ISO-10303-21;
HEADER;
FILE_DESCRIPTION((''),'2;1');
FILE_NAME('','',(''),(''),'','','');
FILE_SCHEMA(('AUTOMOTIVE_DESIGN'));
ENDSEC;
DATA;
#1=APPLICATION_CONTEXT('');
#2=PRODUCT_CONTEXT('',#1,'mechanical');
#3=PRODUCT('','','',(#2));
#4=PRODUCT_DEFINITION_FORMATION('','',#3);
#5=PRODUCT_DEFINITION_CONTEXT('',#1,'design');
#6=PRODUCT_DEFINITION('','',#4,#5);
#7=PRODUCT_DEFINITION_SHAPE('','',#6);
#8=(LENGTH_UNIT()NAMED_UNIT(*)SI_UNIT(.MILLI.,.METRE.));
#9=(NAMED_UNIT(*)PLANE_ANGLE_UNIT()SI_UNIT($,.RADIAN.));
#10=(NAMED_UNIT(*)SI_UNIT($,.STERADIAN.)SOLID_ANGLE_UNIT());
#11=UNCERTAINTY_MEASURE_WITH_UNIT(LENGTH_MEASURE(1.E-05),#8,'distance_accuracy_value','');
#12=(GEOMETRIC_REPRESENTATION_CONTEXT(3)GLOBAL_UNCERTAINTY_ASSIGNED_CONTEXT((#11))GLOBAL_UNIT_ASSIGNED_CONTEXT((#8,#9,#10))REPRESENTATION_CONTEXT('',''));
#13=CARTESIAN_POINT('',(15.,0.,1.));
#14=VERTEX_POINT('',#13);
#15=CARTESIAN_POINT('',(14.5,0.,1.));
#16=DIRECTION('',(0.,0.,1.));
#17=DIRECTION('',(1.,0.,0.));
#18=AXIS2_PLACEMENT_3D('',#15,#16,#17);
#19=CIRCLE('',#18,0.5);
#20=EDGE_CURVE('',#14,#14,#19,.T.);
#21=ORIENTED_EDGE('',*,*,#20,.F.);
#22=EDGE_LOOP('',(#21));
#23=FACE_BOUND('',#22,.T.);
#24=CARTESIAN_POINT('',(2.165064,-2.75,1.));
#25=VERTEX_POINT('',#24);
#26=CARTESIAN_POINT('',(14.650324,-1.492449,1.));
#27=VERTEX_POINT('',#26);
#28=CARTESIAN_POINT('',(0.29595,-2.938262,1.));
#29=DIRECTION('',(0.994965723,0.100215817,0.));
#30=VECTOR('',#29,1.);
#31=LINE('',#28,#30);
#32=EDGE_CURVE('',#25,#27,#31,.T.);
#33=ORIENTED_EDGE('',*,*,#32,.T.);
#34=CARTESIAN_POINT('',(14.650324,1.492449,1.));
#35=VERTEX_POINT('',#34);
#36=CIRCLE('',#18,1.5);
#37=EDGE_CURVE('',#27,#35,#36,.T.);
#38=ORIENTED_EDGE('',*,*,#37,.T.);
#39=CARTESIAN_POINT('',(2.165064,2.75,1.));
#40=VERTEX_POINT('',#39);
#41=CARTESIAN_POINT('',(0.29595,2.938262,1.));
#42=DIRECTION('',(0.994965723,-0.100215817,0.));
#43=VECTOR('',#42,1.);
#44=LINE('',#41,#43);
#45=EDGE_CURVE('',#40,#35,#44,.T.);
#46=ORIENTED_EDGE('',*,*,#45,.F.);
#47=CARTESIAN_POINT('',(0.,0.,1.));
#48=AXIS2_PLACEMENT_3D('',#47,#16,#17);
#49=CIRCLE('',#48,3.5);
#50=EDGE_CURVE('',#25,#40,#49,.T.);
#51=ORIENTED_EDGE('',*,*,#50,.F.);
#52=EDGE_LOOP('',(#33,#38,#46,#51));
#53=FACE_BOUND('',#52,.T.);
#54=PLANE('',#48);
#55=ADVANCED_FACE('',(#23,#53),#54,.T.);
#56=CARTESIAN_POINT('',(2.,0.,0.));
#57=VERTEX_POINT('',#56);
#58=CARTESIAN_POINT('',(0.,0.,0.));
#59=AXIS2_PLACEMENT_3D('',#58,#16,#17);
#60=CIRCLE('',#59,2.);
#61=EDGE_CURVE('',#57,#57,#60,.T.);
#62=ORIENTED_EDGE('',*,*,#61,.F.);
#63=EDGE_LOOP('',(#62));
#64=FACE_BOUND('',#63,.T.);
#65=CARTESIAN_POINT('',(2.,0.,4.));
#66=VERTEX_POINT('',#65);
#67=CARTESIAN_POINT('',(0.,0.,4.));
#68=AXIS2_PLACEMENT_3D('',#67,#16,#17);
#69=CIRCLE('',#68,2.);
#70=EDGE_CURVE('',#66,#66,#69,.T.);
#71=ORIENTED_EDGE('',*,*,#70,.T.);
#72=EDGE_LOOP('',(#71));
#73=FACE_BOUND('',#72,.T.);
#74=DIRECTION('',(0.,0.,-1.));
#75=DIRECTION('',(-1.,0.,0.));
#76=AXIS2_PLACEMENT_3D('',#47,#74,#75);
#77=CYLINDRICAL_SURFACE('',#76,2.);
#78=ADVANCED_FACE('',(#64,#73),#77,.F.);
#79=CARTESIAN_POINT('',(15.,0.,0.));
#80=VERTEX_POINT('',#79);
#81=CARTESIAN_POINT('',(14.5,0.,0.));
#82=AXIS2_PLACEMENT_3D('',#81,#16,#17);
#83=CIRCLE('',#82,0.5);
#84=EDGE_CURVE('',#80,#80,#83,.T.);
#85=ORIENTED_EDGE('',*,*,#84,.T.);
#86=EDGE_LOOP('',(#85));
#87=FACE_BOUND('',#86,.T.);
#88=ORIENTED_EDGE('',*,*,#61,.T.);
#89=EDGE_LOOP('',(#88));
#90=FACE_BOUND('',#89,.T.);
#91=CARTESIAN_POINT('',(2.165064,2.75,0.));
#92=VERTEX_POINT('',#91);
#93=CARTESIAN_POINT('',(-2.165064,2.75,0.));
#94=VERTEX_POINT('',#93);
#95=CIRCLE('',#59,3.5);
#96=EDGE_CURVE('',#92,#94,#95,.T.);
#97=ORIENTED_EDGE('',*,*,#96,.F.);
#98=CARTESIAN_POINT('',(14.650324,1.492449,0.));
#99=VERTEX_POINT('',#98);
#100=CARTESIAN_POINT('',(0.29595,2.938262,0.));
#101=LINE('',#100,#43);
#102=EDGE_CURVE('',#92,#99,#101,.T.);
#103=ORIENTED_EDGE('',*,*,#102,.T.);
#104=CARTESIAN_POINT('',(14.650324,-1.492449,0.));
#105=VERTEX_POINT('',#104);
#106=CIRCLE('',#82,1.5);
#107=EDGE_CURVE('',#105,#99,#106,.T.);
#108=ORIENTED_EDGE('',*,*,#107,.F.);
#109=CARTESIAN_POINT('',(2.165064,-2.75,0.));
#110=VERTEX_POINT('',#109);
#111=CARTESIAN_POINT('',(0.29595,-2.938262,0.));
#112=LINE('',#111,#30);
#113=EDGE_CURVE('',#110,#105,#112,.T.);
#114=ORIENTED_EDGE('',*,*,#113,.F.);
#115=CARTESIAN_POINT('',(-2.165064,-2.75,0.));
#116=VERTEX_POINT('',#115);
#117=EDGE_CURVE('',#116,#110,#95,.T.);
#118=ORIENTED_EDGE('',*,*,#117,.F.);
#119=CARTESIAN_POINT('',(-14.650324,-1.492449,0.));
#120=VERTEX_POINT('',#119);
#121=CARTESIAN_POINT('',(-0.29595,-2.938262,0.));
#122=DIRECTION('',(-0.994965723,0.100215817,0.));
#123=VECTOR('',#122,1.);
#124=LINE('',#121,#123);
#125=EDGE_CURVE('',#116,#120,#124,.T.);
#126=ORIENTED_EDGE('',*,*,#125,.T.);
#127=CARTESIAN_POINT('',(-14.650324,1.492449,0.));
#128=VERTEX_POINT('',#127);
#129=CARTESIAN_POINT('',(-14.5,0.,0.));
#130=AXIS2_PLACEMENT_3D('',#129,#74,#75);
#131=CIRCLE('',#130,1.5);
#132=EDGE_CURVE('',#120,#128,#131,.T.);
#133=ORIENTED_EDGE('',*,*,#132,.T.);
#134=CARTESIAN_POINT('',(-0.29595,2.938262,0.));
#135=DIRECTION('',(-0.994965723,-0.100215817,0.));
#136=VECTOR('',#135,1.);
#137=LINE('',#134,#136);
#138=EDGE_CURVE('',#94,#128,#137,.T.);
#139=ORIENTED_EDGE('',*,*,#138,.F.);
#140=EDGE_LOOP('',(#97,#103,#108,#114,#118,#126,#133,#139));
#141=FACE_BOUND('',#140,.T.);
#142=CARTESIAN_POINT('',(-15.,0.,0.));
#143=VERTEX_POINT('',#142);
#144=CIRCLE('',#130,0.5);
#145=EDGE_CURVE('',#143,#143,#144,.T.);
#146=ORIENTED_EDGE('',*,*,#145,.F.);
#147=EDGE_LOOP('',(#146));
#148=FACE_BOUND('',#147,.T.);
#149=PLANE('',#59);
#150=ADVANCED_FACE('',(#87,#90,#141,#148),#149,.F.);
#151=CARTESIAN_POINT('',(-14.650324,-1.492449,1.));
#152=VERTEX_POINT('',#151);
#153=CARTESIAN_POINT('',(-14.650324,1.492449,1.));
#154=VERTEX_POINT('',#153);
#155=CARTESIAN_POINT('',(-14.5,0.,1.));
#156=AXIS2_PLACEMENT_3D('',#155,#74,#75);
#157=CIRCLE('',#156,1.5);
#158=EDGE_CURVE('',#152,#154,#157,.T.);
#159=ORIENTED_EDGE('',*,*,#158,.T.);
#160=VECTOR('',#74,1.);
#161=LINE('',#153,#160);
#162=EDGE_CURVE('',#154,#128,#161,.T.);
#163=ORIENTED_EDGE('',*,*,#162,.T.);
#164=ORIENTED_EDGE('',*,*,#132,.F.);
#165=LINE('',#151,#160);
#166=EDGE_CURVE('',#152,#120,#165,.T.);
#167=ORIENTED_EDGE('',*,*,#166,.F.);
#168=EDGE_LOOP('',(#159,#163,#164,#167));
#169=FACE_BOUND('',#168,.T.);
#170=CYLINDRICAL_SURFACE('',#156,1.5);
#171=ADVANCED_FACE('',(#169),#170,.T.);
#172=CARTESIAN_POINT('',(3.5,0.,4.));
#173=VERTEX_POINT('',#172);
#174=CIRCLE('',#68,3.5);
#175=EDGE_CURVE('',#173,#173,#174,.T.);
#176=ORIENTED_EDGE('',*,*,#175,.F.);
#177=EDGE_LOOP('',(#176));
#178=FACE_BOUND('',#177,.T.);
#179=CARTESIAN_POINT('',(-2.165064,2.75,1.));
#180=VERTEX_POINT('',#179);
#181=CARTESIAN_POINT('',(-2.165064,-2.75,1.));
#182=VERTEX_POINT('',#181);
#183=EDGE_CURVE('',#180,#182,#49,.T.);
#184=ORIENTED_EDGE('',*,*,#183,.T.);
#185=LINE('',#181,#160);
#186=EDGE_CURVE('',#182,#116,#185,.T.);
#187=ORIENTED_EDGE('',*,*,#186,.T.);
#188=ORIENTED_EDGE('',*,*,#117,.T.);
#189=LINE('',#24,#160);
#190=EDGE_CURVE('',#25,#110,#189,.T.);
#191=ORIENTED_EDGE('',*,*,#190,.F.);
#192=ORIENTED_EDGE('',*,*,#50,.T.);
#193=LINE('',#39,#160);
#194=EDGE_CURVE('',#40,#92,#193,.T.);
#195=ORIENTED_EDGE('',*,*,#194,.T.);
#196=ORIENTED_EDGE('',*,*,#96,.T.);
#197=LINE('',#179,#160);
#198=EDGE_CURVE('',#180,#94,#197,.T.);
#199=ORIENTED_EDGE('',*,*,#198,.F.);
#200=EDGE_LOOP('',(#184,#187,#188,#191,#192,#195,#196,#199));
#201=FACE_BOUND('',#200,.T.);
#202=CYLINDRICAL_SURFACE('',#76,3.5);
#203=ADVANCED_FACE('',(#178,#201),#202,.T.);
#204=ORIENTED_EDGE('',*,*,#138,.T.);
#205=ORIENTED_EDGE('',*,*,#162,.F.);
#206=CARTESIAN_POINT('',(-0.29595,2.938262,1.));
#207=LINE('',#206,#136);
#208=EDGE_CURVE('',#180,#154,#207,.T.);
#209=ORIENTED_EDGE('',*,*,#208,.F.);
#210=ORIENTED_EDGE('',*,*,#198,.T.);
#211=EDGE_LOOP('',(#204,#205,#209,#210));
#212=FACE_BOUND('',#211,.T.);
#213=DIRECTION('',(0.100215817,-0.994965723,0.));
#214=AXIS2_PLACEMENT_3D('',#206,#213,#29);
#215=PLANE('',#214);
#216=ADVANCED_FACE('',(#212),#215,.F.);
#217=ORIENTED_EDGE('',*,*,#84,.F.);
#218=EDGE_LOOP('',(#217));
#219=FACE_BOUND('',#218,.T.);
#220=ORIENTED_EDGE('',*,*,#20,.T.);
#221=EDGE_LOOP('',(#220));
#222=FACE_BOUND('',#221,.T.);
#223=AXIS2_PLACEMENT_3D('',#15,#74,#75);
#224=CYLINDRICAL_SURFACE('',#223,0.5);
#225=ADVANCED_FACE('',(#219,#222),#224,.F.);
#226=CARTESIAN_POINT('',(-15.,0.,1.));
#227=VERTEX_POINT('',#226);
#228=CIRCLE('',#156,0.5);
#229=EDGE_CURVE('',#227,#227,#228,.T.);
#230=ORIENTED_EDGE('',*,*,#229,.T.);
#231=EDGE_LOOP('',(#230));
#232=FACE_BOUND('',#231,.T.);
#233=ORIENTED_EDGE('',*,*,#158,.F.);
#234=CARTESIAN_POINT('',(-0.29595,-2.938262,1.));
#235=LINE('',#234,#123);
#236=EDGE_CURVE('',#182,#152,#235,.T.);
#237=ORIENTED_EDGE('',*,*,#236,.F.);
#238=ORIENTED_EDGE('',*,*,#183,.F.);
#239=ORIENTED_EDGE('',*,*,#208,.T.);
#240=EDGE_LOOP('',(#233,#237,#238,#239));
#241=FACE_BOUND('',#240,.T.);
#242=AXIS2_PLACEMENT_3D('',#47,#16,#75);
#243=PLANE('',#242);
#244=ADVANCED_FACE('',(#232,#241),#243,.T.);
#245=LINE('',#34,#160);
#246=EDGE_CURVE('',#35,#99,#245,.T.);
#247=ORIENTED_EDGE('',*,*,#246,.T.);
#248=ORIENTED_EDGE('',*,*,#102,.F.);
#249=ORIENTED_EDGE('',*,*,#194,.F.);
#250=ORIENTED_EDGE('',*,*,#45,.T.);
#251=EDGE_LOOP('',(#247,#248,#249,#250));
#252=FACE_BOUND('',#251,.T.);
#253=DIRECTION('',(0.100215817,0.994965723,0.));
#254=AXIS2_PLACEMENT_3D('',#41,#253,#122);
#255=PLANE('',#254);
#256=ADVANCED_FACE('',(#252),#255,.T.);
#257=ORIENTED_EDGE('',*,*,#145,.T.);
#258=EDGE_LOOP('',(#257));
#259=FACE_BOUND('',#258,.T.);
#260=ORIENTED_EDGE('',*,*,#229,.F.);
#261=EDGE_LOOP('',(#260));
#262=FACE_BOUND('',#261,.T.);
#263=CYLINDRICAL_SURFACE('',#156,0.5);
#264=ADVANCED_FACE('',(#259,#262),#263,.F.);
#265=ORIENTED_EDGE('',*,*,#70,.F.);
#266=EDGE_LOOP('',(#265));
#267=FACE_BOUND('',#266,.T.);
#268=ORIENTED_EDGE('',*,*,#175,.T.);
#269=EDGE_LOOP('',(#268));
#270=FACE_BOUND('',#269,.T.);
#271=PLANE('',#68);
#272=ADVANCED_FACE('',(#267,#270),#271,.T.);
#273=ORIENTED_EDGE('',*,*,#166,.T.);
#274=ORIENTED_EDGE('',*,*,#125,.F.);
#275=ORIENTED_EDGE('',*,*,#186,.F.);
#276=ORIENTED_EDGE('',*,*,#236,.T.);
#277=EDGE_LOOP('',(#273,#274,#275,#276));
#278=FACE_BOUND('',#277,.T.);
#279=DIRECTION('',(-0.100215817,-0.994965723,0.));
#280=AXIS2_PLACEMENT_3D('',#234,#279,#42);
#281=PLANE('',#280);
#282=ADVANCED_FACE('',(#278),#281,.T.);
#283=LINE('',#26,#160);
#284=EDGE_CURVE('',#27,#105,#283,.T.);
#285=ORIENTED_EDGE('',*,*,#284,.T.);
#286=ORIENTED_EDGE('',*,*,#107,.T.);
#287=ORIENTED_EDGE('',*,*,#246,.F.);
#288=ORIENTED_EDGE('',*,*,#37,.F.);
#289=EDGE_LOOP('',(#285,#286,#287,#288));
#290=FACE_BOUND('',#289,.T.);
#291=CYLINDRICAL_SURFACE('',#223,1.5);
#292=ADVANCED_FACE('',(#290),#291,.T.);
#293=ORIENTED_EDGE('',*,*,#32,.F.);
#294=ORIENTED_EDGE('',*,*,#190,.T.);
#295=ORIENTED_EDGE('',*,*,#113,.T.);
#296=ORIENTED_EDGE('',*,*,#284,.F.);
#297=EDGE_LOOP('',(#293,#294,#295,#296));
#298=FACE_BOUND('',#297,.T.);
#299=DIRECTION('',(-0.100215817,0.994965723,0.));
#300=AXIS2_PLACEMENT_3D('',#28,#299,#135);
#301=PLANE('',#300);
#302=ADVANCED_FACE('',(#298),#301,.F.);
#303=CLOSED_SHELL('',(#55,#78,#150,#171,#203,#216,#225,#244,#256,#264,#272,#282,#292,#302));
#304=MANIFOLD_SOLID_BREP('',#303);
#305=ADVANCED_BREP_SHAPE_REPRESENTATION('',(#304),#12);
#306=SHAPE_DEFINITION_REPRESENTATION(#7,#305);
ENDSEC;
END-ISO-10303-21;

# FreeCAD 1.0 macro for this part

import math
import FreeCAD as App
import Part
import Sketcher

doc = App.newDocument("Part")
body = doc.addObject("PartDesign::Body", "Body")

# Sketch on XY plane
sketch1 = doc.addObject("Sketcher::SketchObject", "Sketch")
body.addObject(sketch1)
sketch1.AttachmentSupport = (doc.XY_Plane, [""])
sketch1.MapMode = "FlatFace"
sketch1.addGeometry([
    Part.LineSegment(App.Vector(14.7, 1.5, 0), App.Vector(2.2, 2.8, 0)),  # 0
    Part.ArcOfCircle(Part.Circle(App.Vector(0, 0, 0), App.Vector(0, 0, 1), 3.5), math.radians(52), math.radians(308)),  # 1
    Part.LineSegment(App.Vector(2.2, -2.8, 0), App.Vector(14.7, -1.5, 0)),  # 2
    Part.ArcOfCircle(Part.Circle(App.Vector(14.5, 0, 0), App.Vector(0, 0, 1), 1.5), math.radians(-84), math.radians(84)),  # 3
    Part.Circle(App.Vector(0, 0, 0), App.Vector(0, 0, 1), 2),  # 4
    Part.Circle(App.Vector(14.5, 0, 0), App.Vector(0, 0, 1), 0.5),  # 5
], False)
sketch1.addConstraint([
    Sketcher.Constraint("Coincident", 0, 2, 1, 1),
    Sketcher.Constraint("Coincident", 1, 2, 2, 1),
    Sketcher.Constraint("Tangent", 2, 2, 3, 1),
    Sketcher.Constraint("Tangent", 3, 2, 0, 1),
    Sketcher.Constraint("Coincident", 1, 3, -1, 1),
    Sketcher.Constraint("Coincident", 4, 3, -1, 1),
    Sketcher.Constraint("Coincident", 5, 3, 3, 3),
    Sketcher.Constraint("Symmetric", 2, 2, 3, 2, -1),
    Sketcher.Constraint("Diameter", 4, 4.0),
    Sketcher.Constraint("Diameter", 5, 1.0),
    Sketcher.Constraint("Radius", 1, 3.5),
    Sketcher.Constraint("Radius", 3, 1.5),
    Sketcher.Constraint("DistanceX", -1, 1, 3, 3, 14.5),
    Sketcher.Constraint("DistanceY", 1, 2, 0, 2, 5.5),
])
pad1 = doc.addObject("PartDesign::Pad", "Pad")
body.addObject(pad1)
pad1.Profile = sketch1
pad1.Length = 1

# Sketch on XY plane
sketch2 = doc.addObject("Sketcher::SketchObject", "Sketch001")
body.addObject(sketch2)
sketch2.AttachmentSupport = (doc.XY_Plane, [""])
sketch2.MapMode = "FlatFace"
sketch2.AttachmentOffset = App.Placement(App.Vector(0, 0, 1), App.Rotation())
sketch2.addGeometry([
    Part.Circle(App.Vector(0, 0, 0), App.Vector(0, 0, 1), 3.5),
    Part.Circle(App.Vector(0, 0, 0), App.Vector(0, 0, 1), 2),
], False)
sketch2.addConstraint([
    Sketcher.Constraint("Coincident", 0, 3, -1, 1),
    Sketcher.Constraint("Coincident", 1, 3, -1, 1),
    Sketcher.Constraint("Diameter", 0, 7.0),
    Sketcher.Constraint("Diameter", 1, 4.0),
])
pad2 = doc.addObject("PartDesign::Pad", "Pad001")
body.addObject(pad2)
pad2.Profile = sketch2
pad2.Length = 3
doc.recompute()

mirrored = doc.addObject("PartDesign::Mirrored", "Mirrored")
body.addObject(mirrored)
mirrored.Originals = [pad1]
mirrored.MirrorPlane = (doc.YZ_Plane, [""])
body.Tip = mirrored

doc.recompute()
